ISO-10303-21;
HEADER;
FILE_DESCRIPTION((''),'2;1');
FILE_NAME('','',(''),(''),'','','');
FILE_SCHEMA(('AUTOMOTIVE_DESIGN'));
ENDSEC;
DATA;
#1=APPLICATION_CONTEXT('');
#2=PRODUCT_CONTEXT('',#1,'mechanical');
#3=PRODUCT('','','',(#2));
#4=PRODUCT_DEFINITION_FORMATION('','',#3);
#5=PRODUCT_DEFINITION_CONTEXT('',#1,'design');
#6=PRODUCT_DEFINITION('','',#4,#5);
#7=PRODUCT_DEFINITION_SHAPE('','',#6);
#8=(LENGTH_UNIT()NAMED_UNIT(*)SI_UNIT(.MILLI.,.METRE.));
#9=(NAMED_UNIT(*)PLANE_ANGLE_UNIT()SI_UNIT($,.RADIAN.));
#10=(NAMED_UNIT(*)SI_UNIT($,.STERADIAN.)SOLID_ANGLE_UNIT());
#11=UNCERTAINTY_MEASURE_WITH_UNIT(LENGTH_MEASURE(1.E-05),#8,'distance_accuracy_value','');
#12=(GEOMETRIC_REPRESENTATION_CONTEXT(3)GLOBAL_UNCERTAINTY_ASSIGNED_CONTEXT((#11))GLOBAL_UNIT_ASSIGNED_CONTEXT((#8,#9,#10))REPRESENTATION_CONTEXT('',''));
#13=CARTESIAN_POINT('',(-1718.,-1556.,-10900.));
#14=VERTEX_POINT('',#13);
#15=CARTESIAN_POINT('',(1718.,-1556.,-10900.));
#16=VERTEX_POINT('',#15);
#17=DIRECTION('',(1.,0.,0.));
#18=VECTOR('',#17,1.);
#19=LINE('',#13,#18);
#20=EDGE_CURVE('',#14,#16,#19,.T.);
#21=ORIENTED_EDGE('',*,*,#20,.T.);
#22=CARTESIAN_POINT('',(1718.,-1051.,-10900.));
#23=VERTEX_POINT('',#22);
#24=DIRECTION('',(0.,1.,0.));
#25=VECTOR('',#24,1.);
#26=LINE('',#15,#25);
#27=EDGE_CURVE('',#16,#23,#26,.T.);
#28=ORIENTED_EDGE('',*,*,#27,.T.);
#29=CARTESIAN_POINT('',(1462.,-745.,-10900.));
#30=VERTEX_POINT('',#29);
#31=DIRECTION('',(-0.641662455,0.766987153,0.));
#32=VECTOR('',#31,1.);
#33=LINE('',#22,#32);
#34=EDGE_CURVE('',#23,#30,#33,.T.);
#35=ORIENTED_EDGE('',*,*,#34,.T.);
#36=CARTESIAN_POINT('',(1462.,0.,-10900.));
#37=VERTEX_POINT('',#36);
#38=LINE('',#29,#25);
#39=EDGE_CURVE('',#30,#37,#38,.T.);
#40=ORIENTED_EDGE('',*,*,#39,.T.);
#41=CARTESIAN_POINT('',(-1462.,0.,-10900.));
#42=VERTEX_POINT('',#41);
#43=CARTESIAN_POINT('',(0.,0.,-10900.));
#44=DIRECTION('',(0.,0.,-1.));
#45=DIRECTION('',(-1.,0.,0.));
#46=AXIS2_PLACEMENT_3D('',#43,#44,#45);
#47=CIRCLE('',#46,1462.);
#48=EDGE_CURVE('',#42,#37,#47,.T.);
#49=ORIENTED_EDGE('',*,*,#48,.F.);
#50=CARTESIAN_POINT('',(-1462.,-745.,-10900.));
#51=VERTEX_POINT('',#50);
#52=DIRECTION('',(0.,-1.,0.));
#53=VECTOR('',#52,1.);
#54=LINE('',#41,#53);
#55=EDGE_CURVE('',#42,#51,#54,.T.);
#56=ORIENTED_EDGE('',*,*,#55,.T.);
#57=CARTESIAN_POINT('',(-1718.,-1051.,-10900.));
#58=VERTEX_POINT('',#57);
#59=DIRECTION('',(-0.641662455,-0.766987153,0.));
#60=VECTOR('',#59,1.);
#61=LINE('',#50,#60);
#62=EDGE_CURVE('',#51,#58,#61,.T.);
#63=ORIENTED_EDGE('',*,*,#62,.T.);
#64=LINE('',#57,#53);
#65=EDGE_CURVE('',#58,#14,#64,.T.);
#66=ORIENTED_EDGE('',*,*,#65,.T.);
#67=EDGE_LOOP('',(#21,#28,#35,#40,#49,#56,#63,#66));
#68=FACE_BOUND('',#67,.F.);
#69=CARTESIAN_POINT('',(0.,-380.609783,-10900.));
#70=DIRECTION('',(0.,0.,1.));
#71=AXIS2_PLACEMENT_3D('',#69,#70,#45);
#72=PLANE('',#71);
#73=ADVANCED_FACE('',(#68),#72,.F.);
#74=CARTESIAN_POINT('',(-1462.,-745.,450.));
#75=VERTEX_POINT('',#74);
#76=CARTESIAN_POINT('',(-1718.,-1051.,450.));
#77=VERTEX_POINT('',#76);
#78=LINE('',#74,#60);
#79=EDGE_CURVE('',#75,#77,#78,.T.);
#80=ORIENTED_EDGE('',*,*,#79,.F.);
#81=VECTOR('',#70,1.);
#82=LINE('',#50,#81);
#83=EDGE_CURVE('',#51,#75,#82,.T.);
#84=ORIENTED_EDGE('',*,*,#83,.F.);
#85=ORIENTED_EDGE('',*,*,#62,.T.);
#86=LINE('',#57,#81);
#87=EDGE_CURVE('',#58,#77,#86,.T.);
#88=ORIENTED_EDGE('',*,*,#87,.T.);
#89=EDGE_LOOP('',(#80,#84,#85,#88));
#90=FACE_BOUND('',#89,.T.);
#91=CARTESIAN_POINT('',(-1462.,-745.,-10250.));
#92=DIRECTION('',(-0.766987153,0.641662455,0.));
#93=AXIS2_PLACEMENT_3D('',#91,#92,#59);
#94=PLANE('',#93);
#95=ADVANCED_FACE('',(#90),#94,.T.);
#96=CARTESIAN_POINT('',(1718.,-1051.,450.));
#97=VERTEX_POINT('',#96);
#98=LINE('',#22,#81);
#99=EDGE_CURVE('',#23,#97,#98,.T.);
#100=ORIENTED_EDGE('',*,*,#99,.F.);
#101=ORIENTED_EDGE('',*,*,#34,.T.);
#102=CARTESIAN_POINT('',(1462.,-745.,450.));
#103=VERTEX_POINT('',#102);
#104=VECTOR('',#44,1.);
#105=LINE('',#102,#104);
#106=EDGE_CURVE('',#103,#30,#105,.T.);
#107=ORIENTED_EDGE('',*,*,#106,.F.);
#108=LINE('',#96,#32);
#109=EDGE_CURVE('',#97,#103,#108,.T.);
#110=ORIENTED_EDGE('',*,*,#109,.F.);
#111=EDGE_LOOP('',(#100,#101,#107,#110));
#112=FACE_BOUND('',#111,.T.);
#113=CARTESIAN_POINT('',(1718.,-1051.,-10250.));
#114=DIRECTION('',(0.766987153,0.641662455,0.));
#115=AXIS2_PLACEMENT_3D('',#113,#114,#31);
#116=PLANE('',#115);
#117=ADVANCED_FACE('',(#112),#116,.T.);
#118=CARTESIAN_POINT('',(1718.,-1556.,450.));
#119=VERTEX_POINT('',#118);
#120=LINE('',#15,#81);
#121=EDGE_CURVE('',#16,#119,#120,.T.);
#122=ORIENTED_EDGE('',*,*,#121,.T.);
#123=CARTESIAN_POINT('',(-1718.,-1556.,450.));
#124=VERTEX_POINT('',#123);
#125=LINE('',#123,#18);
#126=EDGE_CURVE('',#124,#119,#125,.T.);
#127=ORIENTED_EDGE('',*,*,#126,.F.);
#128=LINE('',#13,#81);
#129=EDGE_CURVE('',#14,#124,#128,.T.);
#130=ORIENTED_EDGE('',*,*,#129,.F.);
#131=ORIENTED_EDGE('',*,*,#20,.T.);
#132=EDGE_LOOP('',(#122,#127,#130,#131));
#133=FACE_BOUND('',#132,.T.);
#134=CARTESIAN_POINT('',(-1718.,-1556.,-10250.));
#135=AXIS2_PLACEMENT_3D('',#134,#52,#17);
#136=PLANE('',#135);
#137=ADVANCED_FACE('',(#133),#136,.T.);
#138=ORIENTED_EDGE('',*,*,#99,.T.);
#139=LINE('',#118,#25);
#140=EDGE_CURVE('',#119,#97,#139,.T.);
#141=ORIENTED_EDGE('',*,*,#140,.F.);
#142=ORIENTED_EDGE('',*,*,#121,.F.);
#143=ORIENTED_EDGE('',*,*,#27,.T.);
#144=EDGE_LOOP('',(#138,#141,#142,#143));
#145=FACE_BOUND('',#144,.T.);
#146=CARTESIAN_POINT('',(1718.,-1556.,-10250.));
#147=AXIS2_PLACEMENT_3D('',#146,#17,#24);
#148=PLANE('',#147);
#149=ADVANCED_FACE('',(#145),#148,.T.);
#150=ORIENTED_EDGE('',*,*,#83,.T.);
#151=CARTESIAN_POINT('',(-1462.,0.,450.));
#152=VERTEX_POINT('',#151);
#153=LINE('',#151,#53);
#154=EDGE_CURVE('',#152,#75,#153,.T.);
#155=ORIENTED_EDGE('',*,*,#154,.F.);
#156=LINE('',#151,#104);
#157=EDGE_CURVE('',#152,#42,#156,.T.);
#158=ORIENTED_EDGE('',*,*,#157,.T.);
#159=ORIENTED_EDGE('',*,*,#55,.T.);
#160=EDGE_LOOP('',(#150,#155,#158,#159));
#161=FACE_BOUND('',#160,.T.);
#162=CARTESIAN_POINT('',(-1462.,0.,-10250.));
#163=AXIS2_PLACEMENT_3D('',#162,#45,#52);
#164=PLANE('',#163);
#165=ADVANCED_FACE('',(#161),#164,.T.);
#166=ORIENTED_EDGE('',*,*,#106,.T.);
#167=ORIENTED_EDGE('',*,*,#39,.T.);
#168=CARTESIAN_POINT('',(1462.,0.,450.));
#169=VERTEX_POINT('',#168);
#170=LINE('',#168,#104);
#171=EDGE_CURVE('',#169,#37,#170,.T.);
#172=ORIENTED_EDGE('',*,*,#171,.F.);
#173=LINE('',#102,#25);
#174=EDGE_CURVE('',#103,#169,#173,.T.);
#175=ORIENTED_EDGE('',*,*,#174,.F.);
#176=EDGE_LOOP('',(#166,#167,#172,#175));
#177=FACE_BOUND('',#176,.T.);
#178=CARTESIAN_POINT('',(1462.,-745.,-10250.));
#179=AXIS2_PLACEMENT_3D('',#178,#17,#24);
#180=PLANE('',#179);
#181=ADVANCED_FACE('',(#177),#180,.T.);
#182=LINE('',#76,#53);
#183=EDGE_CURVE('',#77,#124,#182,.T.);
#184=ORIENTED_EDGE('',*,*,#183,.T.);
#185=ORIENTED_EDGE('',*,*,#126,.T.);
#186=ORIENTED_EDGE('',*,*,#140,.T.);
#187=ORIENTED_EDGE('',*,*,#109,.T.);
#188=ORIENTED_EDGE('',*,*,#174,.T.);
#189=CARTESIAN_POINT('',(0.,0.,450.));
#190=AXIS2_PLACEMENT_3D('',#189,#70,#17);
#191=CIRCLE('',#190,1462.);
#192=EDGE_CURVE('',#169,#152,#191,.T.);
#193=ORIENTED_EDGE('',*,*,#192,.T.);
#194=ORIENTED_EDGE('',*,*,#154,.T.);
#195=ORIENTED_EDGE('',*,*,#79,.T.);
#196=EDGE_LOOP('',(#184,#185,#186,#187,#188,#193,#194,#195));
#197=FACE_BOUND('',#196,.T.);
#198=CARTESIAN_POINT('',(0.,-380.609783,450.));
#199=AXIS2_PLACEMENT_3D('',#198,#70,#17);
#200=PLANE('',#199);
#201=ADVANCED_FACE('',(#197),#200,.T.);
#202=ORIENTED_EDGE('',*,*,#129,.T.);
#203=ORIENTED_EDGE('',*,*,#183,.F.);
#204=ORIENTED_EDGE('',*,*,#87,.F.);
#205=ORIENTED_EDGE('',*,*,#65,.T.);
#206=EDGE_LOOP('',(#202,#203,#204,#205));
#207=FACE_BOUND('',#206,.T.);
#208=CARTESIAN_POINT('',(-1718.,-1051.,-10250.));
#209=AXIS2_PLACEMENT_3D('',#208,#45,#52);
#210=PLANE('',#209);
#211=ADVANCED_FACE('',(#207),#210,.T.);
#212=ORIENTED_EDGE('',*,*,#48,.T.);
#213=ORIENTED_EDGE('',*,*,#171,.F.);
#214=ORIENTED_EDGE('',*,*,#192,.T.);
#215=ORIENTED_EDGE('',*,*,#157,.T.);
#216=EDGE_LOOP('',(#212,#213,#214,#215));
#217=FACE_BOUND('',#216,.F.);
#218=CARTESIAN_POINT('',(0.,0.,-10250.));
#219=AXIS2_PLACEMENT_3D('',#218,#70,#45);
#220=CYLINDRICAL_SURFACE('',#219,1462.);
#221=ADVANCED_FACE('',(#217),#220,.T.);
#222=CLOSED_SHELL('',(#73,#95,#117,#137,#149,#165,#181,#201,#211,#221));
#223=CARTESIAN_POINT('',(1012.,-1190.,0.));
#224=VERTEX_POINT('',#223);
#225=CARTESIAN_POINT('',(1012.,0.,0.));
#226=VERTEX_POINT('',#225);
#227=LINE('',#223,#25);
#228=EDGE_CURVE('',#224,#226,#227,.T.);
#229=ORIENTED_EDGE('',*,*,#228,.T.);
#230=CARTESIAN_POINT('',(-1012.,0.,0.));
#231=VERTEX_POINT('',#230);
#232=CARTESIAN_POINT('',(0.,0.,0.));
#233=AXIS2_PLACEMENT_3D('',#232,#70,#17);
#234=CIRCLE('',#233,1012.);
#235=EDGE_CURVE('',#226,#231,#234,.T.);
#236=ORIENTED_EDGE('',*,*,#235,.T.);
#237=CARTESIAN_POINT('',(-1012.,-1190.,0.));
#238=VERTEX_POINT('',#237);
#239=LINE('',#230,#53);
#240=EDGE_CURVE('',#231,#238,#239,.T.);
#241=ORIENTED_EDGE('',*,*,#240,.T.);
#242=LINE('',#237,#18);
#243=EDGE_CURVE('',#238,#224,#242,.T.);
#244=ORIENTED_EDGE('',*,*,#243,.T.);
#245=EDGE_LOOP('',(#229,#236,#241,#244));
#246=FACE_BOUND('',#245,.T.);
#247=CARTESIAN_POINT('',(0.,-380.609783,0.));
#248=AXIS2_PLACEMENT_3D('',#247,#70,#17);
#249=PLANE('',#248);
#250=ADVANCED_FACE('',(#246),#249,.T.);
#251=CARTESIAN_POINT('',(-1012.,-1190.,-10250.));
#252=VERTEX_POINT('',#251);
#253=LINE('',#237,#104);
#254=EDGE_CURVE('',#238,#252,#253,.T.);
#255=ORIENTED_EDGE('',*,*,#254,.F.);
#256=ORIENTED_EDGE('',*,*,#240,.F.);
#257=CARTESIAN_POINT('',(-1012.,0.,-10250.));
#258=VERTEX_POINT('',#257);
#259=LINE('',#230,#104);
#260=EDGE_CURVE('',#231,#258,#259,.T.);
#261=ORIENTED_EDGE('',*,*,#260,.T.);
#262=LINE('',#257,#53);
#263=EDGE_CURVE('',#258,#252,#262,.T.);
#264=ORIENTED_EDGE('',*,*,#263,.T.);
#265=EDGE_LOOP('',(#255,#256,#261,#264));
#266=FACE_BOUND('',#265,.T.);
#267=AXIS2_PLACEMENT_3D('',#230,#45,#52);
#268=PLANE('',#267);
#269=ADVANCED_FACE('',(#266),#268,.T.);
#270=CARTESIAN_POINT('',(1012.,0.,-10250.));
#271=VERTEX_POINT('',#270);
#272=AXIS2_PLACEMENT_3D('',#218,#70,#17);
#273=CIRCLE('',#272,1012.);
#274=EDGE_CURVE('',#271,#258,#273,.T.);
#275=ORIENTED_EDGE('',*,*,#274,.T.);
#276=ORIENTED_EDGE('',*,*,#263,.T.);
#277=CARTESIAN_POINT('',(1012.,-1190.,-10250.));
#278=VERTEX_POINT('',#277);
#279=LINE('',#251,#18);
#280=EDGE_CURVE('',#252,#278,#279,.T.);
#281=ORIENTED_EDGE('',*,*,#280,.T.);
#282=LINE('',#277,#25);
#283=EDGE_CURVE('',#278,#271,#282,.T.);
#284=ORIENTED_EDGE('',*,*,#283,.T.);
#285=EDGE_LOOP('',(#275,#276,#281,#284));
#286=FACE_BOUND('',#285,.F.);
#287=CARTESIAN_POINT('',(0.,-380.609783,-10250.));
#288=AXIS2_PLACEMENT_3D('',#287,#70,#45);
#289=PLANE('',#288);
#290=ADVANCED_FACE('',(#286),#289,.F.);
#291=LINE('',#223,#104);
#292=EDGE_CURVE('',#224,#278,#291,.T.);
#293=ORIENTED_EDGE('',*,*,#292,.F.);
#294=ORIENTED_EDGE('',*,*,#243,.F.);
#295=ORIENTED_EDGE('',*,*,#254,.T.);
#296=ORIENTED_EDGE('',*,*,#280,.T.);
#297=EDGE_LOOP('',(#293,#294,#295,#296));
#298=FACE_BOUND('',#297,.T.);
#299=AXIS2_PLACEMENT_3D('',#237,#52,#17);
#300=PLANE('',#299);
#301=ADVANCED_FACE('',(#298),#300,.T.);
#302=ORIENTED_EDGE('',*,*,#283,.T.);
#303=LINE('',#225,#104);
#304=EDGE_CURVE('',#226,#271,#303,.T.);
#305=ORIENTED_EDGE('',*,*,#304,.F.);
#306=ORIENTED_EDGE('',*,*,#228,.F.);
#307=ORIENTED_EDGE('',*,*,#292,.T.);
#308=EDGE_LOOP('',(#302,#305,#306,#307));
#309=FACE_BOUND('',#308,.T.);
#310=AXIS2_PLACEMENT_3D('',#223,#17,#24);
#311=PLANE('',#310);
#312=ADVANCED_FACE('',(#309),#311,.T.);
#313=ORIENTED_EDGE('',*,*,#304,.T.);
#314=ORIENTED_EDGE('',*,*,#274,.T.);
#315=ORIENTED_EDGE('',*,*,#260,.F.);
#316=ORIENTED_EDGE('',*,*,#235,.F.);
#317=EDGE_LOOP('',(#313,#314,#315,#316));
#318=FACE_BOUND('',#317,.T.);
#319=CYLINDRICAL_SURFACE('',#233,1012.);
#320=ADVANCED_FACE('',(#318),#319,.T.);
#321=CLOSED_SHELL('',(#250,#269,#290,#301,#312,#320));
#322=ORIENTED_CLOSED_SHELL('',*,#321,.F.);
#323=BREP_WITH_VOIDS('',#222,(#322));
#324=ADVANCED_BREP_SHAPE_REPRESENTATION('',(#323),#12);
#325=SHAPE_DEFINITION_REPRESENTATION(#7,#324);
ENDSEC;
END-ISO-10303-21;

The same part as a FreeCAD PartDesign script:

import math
import FreeCAD as App
import Part
import Sketcher
from FreeCAD import Vector

doc = App.newDocument("Part")
body = doc.addObject("PartDesign::Body", "Body")

# Sketch on XY plane
sketch1 = body.newObject("Sketcher::SketchObject", "Sketch")
sketch1.AttachmentSupport = (doc.getObject("XY_Plane"), [""])
sketch1.MapMode = "FlatFace"
sketch1.addGeometry(Part.ArcOfCircle(Part.Circle(Vector(0, 0, 0), Vector(0, 0, 1), 1462), math.radians(0), math.radians(180)), False)
sketch1.addGeometry(Part.LineSegment(Vector(-1462, 0, 0), Vector(-1462, -745, 0)), False)
sketch1.addGeometry(Part.LineSegment(Vector(-1462, -745, 0), Vector(-1718, -1051, 0)), False)
sketch1.addGeometry(Part.LineSegment(Vector(-1718, -1051, 0), Vector(-1718, -1556, 0)), False)
sketch1.addGeometry(Part.LineSegment(Vector(-1718, -1556, 0), Vector(1718, -1556, 0)), False)
sketch1.addGeometry(Part.LineSegment(Vector(1718, -1556, 0), Vector(1718, -1051, 0)), False)
sketch1.addGeometry(Part.LineSegment(Vector(1718, -1051, 0), Vector(1462, -745, 0)), False)
sketch1.addGeometry(Part.LineSegment(Vector(1462, -745, 0), Vector(1462, 0, 0)), False)
sketch1.addGeometry(Part.ArcOfCircle(Part.Circle(Vector(0, 0, 0), Vector(0, 0, 1), 1012), math.radians(0), math.radians(180)), False)
sketch1.addGeometry(Part.LineSegment(Vector(1012, 0, 0), Vector(1012, -1190, 0)), False)
sketch1.addGeometry(Part.LineSegment(Vector(1012, -1190, 0), Vector(-1012, -1190, 0)), False)
sketch1.addGeometry(Part.LineSegment(Vector(-1012, -1190, 0), Vector(-1012, 0, 0)), False)
sketch1.addConstraint(Sketcher.Constraint("Coincident", 0, 2, 1, 1))
sketch1.addConstraint(Sketcher.Constraint("Coincident", 1, 2, 2, 1))
sketch1.addConstraint(Sketcher.Constraint("Coincident", 2, 2, 3, 1))
sketch1.addConstraint(Sketcher.Constraint("Coincident", 3, 2, 4, 1))
sketch1.addConstraint(Sketcher.Constraint("Coincident", 4, 2, 5, 1))
sketch1.addConstraint(Sketcher.Constraint("Coincident", 5, 2, 6, 1))
sketch1.addConstraint(Sketcher.Constraint("Coincident", 6, 2, 7, 1))
sketch1.addConstraint(Sketcher.Constraint("Coincident", 7, 2, 0, 1))
sketch1.addConstraint(Sketcher.Constraint("Coincident", 8, 1, 9, 1))
sketch1.addConstraint(Sketcher.Constraint("Coincident", 9, 2, 10, 1))
sketch1.addConstraint(Sketcher.Constraint("Coincident", 10, 2, 11, 1))
sketch1.addConstraint(Sketcher.Constraint("Coincident", 11, 2, 8, 2))
sketch1.addConstraint(Sketcher.Constraint("Vertical", 1))
sketch1.addConstraint(Sketcher.Constraint("Vertical", 3))
sketch1.addConstraint(Sketcher.Constraint("Horizontal", 4))
sketch1.addConstraint(Sketcher.Constraint("Vertical", 5))
sketch1.addConstraint(Sketcher.Constraint("Vertical", 7))
sketch1.addConstraint(Sketcher.Constraint("Vertical", 9))
sketch1.addConstraint(Sketcher.Constraint("Horizontal", 10))
sketch1.addConstraint(Sketcher.Constraint("Vertical", 11))
sketch1.addConstraint(Sketcher.Constraint("Coincident", 0, 3, -1, 1))
sketch1.addConstraint(Sketcher.Constraint("Coincident", 8, 3, -1, 1))
sketch1.addConstraint(Sketcher.Constraint("Symmetric", 2, 2, 5, 2, -2))
sketch1.addConstraint(Sketcher.Constraint("PointOnObject", 7, 2, -1))
sketch1.addConstraint(Sketcher.Constraint("PointOnObject", 11, 2, -1))
sketch1.addConstraint(Sketcher.Constraint("Horizontal", 1, 2, 6, 2))
sketch1.addConstraint(Sketcher.Constraint("Equal", 1, 7))
sketch1.addConstraint(Sketcher.Constraint("Equal", 9, 11))
sketch1.addConstraint(Sketcher.Constraint("Radius", 0, 1462.0))
sketch1.addConstraint(Sketcher.Constraint("Radius", 8, 1012.0))
sketch1.addConstraint(Sketcher.Constraint("DistanceX", 4, 1, 4, 2, 3436.0))
sketch1.addConstraint(Sketcher.Constraint("DistanceY", 1, 2, 1, 1, 745.0))
sketch1.addConstraint(Sketcher.Constraint("DistanceY", 3, 2, 3, 1, 505.0))
sketch1.addConstraint(Sketcher.Constraint("DistanceY", 9, 2, 9, 1, 1190.0))
sketch1.addConstraint(Sketcher.Constraint("DistanceY", 2, 2, -1, 1, 1051.0))
pad1 = body.newObject("PartDesign::Pad", "Pad")
pad1.Profile = sketch1
pad1.Length = 10250
pad1.Reversed = True

# Sketch on XY plane
sketch2 = body.newObject("Sketcher::SketchObject", "Sketch001")
sketch2.AttachmentSupport = (doc.getObject("XY_Plane"), [""])
sketch2.MapMode = "FlatFace"
sketch2.addGeometry(Part.LineSegment(Vector(-1462, 0, 0), Vector(-1462, -745, 0)), False)
sketch2.addGeometry(Part.LineSegment(Vector(-1462, -745, 0), Vector(-1718, -1051, 0)), False)
sketch2.addGeometry(Part.LineSegment(Vector(-1718, -1051, 0), Vector(-1718, -1556, 0)), False)
sketch2.addGeometry(Part.LineSegment(Vector(-1718, -1556, 0), Vector(1718, -1556, 0)), False)
sketch2.addGeometry(Part.LineSegment(Vector(1718, -1556, 0), Vector(1718, -1051, 0)), False)
sketch2.addGeometry(Part.LineSegment(Vector(1718, -1051, 0), Vector(1462, -745, 0)), False)
sketch2.addGeometry(Part.LineSegment(Vector(1462, -745, 0), Vector(1462, 0, 0)), False)
sketch2.addGeometry(Part.ArcOfCircle(Part.Circle(Vector(0, 0, 0), Vector(0, 0, 1), 1462), math.radians(0), math.radians(180)), False)
sketch2.addConstraint(Sketcher.Constraint("Coincident", 0, 2, 1, 1))
sketch2.addConstraint(Sketcher.Constraint("Coincident", 1, 2, 2, 1))
sketch2.addConstraint(Sketcher.Constraint("Coincident", 2, 2, 3, 1))
sketch2.addConstraint(Sketcher.Constraint("Coincident", 3, 2, 4, 1))
sketch2.addConstraint(Sketcher.Constraint("Coincident", 4, 2, 5, 1))
sketch2.addConstraint(Sketcher.Constraint("Coincident", 5, 2, 6, 1))
sketch2.addConstraint(Sketcher.Constraint("Coincident", 6, 2, 7, 1))
sketch2.addConstraint(Sketcher.Constraint("Coincident", 7, 2, 0, 1))
sketch2.addConstraint(Sketcher.Constraint("Vertical", 0))
sketch2.addConstraint(Sketcher.Constraint("Vertical", 2))
sketch2.addConstraint(Sketcher.Constraint("Horizontal", 3))
sketch2.addConstraint(Sketcher.Constraint("Vertical", 4))
sketch2.addConstraint(Sketcher.Constraint("Vertical", 6))
sketch2.addConstraint(Sketcher.Constraint("Coincident", 7, 3, -1, 1))
sketch2.addConstraint(Sketcher.Constraint("Symmetric", 1, 2, 4, 2, -2))
sketch2.addConstraint(Sketcher.Constraint("PointOnObject", 6, 2, -1))
sketch2.addConstraint(Sketcher.Constraint("Horizontal", 0, 2, 5, 2))
sketch2.addConstraint(Sketcher.Constraint("Equal", 0, 6))
sketch2.addConstraint(Sketcher.Constraint("Radius", 7, 1462.0))
sketch2.addConstraint(Sketcher.Constraint("DistanceX", 3, 1, 3, 2, 3436.0))
sketch2.addConstraint(Sketcher.Constraint("DistanceY", 0, 2, 0, 1, 745.0))
sketch2.addConstraint(Sketcher.Constraint("DistanceY", 2, 2, 2, 1, 505.0))
sketch2.addConstraint(Sketcher.Constraint("DistanceY", 1, 2, -1, 1, 1051.0))
pad2 = body.newObject("PartDesign::Pad", "Pad001")
pad2.Profile = sketch2
pad2.Length = 450

# Sketch on XY plane
sketch3 = body.newObject("Sketcher::SketchObject", "Sketch002")
sketch3.AttachmentSupport = (doc.getObject("XY_Plane"), [""])
sketch3.MapMode = "FlatFace"
sketch3.AttachmentOffset = App.Placement(Vector(0, 0, -10250), App.Rotation())
sketch3.addGeometry(Part.LineSegment(Vector(-1462, -745, 0), Vector(-1462, 0, 0)), False)
sketch3.addGeometry(Part.ArcOfCircle(Part.Circle(Vector(0, 0, 0), Vector(0, 0, 1), 1462), math.radians(0), math.radians(180)), False)
sketch3.addGeometry(Part.LineSegment(Vector(1462, 0, 0), Vector(1462, -745, 0)), False)
sketch3.addGeometry(Part.LineSegment(Vector(1462, -745, 0), Vector(1718, -1051, 0)), False)
sketch3.addGeometry(Part.LineSegment(Vector(1718, -1051, 0), Vector(1718, -1556, 0)), False)
sketch3.addGeometry(Part.LineSegment(Vector(1718, -1556, 0), Vector(-1718, -1556, 0)), False)
sketch3.addGeometry(Part.LineSegment(Vector(-1718, -1556, 0), Vector(-1718, -1051, 0)), False)
sketch3.addGeometry(Part.LineSegment(Vector(-1718, -1051, 0), Vector(-1462, -745, 0)), False)
sketch3.addConstraint(Sketcher.Constraint("Coincident", 0, 2, 1, 2))
sketch3.addConstraint(Sketcher.Constraint("Coincident", 1, 1, 2, 1))
sketch3.addConstraint(Sketcher.Constraint("Coincident", 2, 2, 3, 1))
sketch3.addConstraint(Sketcher.Constraint("Coincident", 3, 2, 4, 1))
sketch3.addConstraint(Sketcher.Constraint("Coincident", 4, 2, 5, 1))
sketch3.addConstraint(Sketcher.Constraint("Coincident", 5, 2, 6, 1))
sketch3.addConstraint(Sketcher.Constraint("Coincident", 6, 2, 7, 1))
sketch3.addConstraint(Sketcher.Constraint("Coincident", 7, 2, 0, 1))
sketch3.addConstraint(Sketcher.Constraint("Vertical", 0))
sketch3.addConstraint(Sketcher.Constraint("Vertical", 2))
sketch3.addConstraint(Sketcher.Constraint("Vertical", 4))
sketch3.addConstraint(Sketcher.Constraint("Horizontal", 5))
sketch3.addConstraint(Sketcher.Constraint("Vertical", 6))
sketch3.addConstraint(Sketcher.Constraint("Coincident", 1, 3, -1, 1))
sketch3.addConstraint(Sketcher.Constraint("Symmetric", 3, 2, 6, 2, -2))
sketch3.addConstraint(Sketcher.Constraint("PointOnObject", 0, 2, -1))
sketch3.addConstraint(Sketcher.Constraint("Horizontal", 2, 2, 7, 2))
sketch3.addConstraint(Sketcher.Constraint("Equal", 0, 2))
sketch3.addConstraint(Sketcher.Constraint("Radius", 1, 1462.0))
sketch3.addConstraint(Sketcher.Constraint("DistanceX", 5, 2, 5, 1, 3436.0))
sketch3.addConstraint(Sketcher.Constraint("DistanceY", 0, 1, 0, 2, 745.0))
sketch3.addConstraint(Sketcher.Constraint("DistanceY", 4, 2, 4, 1, 505.0))
sketch3.addConstraint(Sketcher.Constraint("DistanceY", 3, 2, -1, 1, 1051.0))
pad3 = body.newObject("PartDesign::Pad", "Pad002")
pad3.Profile = sketch3
pad3.Length = 650
pad3.Reversed = True

doc.recompute()
